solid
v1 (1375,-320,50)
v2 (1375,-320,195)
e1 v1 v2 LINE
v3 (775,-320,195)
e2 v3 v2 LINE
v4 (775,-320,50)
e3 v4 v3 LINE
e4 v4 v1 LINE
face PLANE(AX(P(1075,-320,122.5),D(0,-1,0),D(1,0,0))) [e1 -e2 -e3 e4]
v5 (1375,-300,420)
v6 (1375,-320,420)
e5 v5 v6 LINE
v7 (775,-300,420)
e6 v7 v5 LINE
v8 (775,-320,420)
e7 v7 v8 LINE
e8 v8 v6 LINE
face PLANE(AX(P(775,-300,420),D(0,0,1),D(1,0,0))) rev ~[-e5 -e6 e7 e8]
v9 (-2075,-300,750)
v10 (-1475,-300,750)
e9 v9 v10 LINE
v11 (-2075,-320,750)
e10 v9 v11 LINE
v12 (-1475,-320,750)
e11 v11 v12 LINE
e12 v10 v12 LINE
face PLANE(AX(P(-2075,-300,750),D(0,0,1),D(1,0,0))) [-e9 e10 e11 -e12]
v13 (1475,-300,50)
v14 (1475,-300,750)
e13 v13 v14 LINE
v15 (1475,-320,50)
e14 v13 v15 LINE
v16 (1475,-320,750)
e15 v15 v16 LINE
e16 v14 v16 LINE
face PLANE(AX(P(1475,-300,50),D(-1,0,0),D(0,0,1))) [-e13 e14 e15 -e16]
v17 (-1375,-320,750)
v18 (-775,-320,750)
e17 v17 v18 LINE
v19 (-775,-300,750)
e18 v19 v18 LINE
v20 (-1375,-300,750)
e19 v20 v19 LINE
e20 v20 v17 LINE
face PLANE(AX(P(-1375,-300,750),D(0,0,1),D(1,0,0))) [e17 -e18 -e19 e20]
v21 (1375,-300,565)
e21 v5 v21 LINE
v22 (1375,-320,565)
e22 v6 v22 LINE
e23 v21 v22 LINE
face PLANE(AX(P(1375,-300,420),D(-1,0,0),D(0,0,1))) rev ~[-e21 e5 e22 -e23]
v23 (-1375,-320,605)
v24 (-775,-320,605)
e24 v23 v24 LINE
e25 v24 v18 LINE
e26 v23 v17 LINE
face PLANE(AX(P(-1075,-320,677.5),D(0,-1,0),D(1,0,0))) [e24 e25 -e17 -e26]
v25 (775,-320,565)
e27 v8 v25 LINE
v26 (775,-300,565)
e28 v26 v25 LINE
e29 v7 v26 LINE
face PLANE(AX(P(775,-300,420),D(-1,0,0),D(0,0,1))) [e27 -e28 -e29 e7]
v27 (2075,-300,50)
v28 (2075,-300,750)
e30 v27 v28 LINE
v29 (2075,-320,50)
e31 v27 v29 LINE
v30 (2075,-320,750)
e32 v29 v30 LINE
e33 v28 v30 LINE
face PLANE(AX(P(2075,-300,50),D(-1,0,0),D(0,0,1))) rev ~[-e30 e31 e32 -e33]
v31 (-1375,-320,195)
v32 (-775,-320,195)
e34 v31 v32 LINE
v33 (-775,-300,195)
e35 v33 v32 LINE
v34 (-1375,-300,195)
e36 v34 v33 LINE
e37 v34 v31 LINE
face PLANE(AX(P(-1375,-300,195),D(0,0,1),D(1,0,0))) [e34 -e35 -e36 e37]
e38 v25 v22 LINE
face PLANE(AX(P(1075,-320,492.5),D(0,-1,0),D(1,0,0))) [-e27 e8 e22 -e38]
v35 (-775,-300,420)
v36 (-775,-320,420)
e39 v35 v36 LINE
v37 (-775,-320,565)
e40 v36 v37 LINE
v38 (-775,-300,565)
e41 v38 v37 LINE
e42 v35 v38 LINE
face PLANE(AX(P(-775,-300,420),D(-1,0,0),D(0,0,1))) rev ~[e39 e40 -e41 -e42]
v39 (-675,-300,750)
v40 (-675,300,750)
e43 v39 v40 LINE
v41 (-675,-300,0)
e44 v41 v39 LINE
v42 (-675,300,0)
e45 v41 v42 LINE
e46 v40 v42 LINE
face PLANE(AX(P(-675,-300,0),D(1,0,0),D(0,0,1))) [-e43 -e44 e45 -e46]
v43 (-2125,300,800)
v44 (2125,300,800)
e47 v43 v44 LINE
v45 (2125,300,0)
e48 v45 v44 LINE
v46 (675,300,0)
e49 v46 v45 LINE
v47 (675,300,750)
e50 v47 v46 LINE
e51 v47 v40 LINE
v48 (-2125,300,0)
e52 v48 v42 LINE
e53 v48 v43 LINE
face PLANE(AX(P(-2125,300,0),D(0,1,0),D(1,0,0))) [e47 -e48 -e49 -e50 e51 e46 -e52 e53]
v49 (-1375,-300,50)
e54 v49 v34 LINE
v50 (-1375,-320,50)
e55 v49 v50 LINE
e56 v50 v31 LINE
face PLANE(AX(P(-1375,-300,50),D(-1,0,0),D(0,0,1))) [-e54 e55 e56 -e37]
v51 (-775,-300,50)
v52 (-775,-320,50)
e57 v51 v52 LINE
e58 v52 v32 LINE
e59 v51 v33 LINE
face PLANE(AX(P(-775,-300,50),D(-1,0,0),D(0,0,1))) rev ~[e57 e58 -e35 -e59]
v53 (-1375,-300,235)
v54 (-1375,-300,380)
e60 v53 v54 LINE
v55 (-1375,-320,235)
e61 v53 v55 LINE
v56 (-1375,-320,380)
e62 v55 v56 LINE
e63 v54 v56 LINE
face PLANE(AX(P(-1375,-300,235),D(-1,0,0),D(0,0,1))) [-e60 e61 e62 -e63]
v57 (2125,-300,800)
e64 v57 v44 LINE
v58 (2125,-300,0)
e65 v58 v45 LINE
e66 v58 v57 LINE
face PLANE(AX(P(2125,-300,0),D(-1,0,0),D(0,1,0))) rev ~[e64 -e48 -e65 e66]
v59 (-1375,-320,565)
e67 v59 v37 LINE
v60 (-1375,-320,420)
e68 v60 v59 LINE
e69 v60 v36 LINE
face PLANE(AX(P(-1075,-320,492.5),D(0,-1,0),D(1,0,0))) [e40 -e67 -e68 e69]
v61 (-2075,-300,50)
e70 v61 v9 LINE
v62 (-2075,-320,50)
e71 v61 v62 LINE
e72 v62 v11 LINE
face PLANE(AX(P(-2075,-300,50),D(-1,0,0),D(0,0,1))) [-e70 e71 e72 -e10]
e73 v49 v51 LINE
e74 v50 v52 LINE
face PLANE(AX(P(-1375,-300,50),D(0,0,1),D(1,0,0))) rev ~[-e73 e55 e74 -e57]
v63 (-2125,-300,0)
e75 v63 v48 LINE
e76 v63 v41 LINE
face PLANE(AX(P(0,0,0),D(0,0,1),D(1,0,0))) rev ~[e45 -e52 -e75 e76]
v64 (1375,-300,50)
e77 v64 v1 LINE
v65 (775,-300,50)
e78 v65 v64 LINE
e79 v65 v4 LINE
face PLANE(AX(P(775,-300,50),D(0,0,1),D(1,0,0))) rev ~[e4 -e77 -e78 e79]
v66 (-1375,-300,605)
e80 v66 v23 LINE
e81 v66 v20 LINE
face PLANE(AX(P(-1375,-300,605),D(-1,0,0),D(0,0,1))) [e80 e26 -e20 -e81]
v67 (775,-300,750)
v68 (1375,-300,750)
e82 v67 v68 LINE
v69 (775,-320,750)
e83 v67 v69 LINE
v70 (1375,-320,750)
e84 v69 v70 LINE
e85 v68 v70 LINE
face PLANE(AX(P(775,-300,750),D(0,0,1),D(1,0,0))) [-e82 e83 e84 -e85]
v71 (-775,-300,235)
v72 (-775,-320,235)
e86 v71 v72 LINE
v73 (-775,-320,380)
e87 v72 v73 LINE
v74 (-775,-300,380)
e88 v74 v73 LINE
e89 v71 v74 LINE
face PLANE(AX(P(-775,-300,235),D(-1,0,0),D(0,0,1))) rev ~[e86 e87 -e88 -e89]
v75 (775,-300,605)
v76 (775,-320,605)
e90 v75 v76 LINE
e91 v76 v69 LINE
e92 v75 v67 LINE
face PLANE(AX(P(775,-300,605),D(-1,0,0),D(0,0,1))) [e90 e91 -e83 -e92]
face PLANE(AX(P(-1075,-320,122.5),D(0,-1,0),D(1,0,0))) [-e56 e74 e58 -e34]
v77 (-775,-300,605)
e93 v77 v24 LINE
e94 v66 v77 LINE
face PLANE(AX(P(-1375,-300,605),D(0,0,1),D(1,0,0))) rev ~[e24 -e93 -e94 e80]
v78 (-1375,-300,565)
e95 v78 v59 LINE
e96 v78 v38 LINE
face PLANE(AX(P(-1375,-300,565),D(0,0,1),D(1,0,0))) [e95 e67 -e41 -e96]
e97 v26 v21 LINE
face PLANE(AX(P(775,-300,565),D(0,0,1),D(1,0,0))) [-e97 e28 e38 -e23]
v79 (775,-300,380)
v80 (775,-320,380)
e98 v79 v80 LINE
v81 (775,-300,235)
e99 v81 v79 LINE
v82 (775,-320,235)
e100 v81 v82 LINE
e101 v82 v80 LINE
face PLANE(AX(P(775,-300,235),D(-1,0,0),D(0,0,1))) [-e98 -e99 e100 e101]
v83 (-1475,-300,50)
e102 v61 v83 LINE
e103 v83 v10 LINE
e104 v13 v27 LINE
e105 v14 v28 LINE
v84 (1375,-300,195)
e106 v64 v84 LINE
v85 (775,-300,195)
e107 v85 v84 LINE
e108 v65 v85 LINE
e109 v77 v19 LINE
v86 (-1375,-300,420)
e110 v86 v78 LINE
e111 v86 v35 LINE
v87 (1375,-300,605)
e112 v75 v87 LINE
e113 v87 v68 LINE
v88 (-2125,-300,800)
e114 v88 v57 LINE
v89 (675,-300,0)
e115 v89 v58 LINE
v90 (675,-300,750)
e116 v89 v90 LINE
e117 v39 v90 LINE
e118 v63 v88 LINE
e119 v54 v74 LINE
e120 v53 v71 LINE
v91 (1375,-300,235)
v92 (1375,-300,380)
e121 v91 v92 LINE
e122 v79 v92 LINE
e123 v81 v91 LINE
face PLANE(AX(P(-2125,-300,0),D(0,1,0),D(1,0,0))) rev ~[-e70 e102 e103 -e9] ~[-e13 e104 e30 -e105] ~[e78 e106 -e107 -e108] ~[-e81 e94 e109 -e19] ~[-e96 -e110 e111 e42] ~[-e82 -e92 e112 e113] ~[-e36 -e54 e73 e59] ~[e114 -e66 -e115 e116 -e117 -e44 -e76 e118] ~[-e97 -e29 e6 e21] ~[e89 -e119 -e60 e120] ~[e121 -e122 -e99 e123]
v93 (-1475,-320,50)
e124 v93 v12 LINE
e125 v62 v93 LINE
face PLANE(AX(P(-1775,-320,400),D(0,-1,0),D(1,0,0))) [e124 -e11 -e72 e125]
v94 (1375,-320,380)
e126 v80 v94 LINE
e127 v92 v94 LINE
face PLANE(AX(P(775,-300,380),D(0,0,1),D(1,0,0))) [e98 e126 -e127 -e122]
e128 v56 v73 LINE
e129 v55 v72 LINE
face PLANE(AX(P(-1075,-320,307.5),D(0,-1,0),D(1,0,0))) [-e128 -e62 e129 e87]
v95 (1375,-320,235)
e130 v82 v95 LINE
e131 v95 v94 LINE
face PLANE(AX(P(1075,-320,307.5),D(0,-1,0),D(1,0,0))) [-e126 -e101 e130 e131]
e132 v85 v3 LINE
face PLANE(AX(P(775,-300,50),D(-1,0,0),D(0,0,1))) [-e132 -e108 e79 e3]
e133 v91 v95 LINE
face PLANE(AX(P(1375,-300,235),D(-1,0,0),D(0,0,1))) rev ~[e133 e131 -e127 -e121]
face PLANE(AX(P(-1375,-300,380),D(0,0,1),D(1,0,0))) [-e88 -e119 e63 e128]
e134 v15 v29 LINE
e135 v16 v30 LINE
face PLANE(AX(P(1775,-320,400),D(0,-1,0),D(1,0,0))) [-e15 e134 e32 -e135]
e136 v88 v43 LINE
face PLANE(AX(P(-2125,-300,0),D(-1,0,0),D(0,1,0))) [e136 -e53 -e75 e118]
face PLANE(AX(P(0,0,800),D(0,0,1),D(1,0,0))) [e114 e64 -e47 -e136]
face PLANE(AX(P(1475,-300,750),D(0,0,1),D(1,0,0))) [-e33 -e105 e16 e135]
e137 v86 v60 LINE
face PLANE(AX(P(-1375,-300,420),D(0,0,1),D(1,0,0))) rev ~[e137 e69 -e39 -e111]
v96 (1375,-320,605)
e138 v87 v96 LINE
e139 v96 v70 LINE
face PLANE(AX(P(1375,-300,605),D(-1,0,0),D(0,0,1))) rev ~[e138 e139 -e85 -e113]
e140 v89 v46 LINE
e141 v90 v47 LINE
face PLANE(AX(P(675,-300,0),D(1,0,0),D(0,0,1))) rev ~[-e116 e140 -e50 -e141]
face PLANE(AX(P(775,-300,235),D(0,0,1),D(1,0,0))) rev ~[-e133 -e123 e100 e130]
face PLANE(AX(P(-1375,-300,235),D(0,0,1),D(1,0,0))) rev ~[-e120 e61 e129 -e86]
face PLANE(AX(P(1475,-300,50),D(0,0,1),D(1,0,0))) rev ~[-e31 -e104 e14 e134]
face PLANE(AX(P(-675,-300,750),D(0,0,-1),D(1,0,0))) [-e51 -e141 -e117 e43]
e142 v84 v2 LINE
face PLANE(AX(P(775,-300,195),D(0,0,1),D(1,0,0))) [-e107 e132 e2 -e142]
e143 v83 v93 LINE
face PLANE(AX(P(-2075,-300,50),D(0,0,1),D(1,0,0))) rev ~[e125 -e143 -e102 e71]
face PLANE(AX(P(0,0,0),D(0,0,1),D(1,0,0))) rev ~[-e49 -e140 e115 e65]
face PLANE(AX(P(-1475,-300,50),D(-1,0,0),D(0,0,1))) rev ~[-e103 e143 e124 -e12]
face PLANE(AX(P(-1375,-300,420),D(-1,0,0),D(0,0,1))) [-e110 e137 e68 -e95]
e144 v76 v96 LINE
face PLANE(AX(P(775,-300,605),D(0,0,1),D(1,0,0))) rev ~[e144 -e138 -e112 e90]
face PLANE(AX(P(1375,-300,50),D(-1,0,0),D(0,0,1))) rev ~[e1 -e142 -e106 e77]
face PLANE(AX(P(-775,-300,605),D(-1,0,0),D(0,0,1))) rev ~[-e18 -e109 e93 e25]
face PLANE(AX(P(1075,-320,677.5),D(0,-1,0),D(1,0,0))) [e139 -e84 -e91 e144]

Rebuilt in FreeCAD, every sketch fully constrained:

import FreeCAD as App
import Part
import Sketcher

V = App.Vector


def add_polygon(sketch, points):
    """Adds a closed chain of lines whose ends are joined by coincident constraints."""
    first, n = sketch.GeometryCount, len(points)
    for a, b in zip(points, points[1:] + points[:1]):
        sketch.addGeometry(Part.LineSegment(App.Vector(*a, 0), App.Vector(*b, 0)), False)
    for i in range(n):
        sketch.addConstraint(Sketcher.Constraint("Coincident", first + i, 2, first + (i + 1) % n, 1))

doc = App.newDocument("Part")
params = doc.addObject("Spreadsheet::Sheet", "Params")
for row, (alias, value) in enumerate([
    ("sketch1_width", "4250 mm"),
    ("sketch1_height", "600 mm"),
    ("pad1_length", "800 mm"),
    ("sketch2_width", "600 mm"),
    ("sketch2_height", "700 mm"),
    ("sketch2_height2", "145 mm"),
    ("pad2_length", "20 mm"),
    ("sketch3_width", "1350 mm"),
    ("sketch3_height", "750 mm"),
    ("pocket1_length", "700 mm"),
], start=1):
    params.set(f"A{row}", alias)
    params.set(f"B{row}", "=" + value)
    params.setAlias(f"B{row}", alias)

body = doc.addObject("PartDesign::Body", "Body")

sketch1 = body.newObject("Sketcher::SketchObject", "Sketch")
sketch1.AttachmentSupport = (doc.getObject("XY_Plane"), [""])
sketch1.MapMode = "FlatFace"
add_polygon(sketch1, [(-2125, 300), (-2125, -300), (2125, -300), (2125, 300)])
sketch1.addConstraint(Sketcher.Constraint("Vertical", 0))
sketch1.addConstraint(Sketcher.Constraint("Horizontal", 1))
sketch1.addConstraint(Sketcher.Constraint("Vertical", 2))
sketch1.addConstraint(Sketcher.Constraint("Horizontal", 3))
sketch1.addConstraint(Sketcher.Constraint("Symmetric", 0, 2, 2, 2, -1, 1))
sketch1.addConstraint(Sketcher.Constraint("DistanceX", 1, 1, 1, 2, 4250.0))
sketch1.addConstraint(Sketcher.Constraint("DistanceY", 0, 2, 0, 1, 600.0))
sketch1.setExpression("Constraints[9]", "Params.sketch1_width")
sketch1.setExpression("Constraints[10]", "Params.sketch1_height")
pad1 = body.newObject("PartDesign::Pad", "Pad")
pad1.Profile = sketch1
pad1.setExpression("Length", "Params.pad1_length")

sketch2 = body.newObject("Sketcher::SketchObject", "Sketch001")
sketch2.AttachmentSupport = (doc.getObject("XZ_Plane"), [""])
sketch2.MapMode = "FlatFace"
sketch2.AttachmentOffset = App.Placement(V(0, 0, 300), App.Rotation())
add_polygon(sketch2, [(-2075, 750), (-2075, 50), (-1475, 50), (-1475, 750)])
add_polygon(sketch2, [(-1375, 750), (-1375, 605), (-775, 605), (-775, 750)])
add_polygon(sketch2, [(-1375, 565), (-1375, 420), (-775, 420), (-775, 565)])
add_polygon(sketch2, [(-1375, 380), (-1375, 235), (-775, 235), (-775, 380)])
add_polygon(sketch2, [(-1375, 195), (-1375, 50), (-775, 50), (-775, 195)])
add_polygon(sketch2, [(775, 750), (775, 605), (1375, 605), (1375, 750)])
add_polygon(sketch2, [(775, 565), (775, 420), (1375, 420), (1375, 565)])
add_polygon(sketch2, [(775, 380), (775, 235), (1375, 235), (1375, 380)])
add_polygon(sketch2, [(775, 195), (775, 50), (1375, 50), (1375, 195)])
add_polygon(sketch2, [(1475, 750), (1475, 50), (2075, 50), (2075, 750)])
sketch2.addConstraint(Sketcher.Constraint("Vertical", 0))
sketch2.addConstraint(Sketcher.Constraint("Horizontal", 1))
sketch2.addConstraint(Sketcher.Constraint("Vertical", 2))
sketch2.addConstraint(Sketcher.Constraint("Horizontal", 3))
sketch2.addConstraint(Sketcher.Constraint("Vertical", 4))
sketch2.addConstraint(Sketcher.Constraint("Horizontal", 5))
sketch2.addConstraint(Sketcher.Constraint("Vertical", 6))
sketch2.addConstraint(Sketcher.Constraint("Horizontal", 7))
sketch2.addConstraint(Sketcher.Constraint("Vertical", 8))
sketch2.addConstraint(Sketcher.Constraint("Horizontal", 9))
sketch2.addConstraint(Sketcher.Constraint("Vertical", 10))
sketch2.addConstraint(Sketcher.Constraint("Horizontal", 11))
sketch2.addConstraint(Sketcher.Constraint("Vertical", 12))
sketch2.addConstraint(Sketcher.Constraint("Horizontal", 13))
sketch2.addConstraint(Sketcher.Constraint("Vertical", 14))
sketch2.addConstraint(Sketcher.Constraint("Horizontal", 15))
sketch2.addConstraint(Sketcher.Constraint("Vertical", 16))
sketch2.addConstraint(Sketcher.Constraint("Horizontal", 17))
sketch2.addConstraint(Sketcher.Constraint("Vertical", 18))
sketch2.addConstraint(Sketcher.Constraint("Horizontal", 19))
sketch2.addConstraint(Sketcher.Constraint("Vertical", 20))
sketch2.addConstraint(Sketcher.Constraint("Horizontal", 21))
sketch2.addConstraint(Sketcher.Constraint("Vertical", 22))
sketch2.addConstraint(Sketcher.Constraint("Horizontal", 23))
sketch2.addConstraint(Sketcher.Constraint("Vertical", 24))
sketch2.addConstraint(Sketcher.Constraint("Horizontal", 25))
sketch2.addConstraint(Sketcher.Constraint("Vertical", 26))
sketch2.addConstraint(Sketcher.Constraint("Horizontal", 27))
sketch2.addConstraint(Sketcher.Constraint("Vertical", 28))
sketch2.addConstraint(Sketcher.Constraint("Horizontal", 29))
sketch2.addConstraint(Sketcher.Constraint("Vertical", 30))
sketch2.addConstraint(Sketcher.Constraint("Horizontal", 31))
sketch2.addConstraint(Sketcher.Constraint("Vertical", 32))
sketch2.addConstraint(Sketcher.Constraint("Horizontal", 33))
sketch2.addConstraint(Sketcher.Constraint("Vertical", 34))
sketch2.addConstraint(Sketcher.Constraint("Horizontal", 35))
sketch2.addConstraint(Sketcher.Constraint("Vertical", 36))
sketch2.addConstraint(Sketcher.Constraint("Horizontal", 37))
sketch2.addConstraint(Sketcher.Constraint("Vertical", 38))
sketch2.addConstraint(Sketcher.Constraint("Horizontal", 39))
sketch2.addConstraint(Sketcher.Constraint("Symmetric", 5, 2, 20, 2, -2))
sketch2.addConstraint(Sketcher.Constraint("Symmetric", 7, 2, 22, 2, -2))
sketch2.addConstraint(Sketcher.Constraint("Symmetric", 9, 2, 24, 2, -2))
sketch2.addConstraint(Sketcher.Constraint("Symmetric", 11, 2, 26, 2, -2))
sketch2.addConstraint(Sketcher.Constraint("Symmetric", 13, 2, 28, 2, -2))
sketch2.addConstraint(Sketcher.Constraint("Symmetric", 15, 2, 30, 2, -2))
sketch2.addConstraint(Sketcher.Constraint("Symmetric", 17, 2, 32, 2, -2))
sketch2.addConstraint(Sketcher.Constraint("Symmetric", 19, 2, 34, 2, -2))
sketch2.addConstraint(Sketcher.Constraint("Symmetric", 1, 2, 36, 2, -2))
sketch2.addConstraint(Sketcher.Constraint("Symmetric", 3, 2, 38, 2, -2))
sketch2.addConstraint(Sketcher.Constraint("Horizontal", 3, 2, 6, 2))
sketch2.addConstraint(Sketcher.Constraint("Horizontal", 1, 2, 16, 2))
sketch2.addConstraint(Sketcher.Constraint("Vertical", 7, 2, 8, 2))
sketch2.addConstraint(Sketcher.Constraint("Vertical", 6, 2, 9, 2))
sketch2.addConstraint(Sketcher.Constraint("Vertical", 11, 2, 12, 2))
sketch2.addConstraint(Sketcher.Constraint("Vertical", 10, 2, 13, 2))
sketch2.addConstraint(Sketcher.Constraint("Vertical", 15, 2, 16, 2))
sketch2.addConstraint(Sketcher.Constraint("Vertical", 14, 2, 17, 2))
sketch2.addConstraint(Sketcher.Constraint("Equal", 3, 5))
sketch2.addConstraint(Sketcher.Constraint("Equal", 6, 8))
sketch2.addConstraint(Sketcher.Constraint("Equal", 10, 12))
sketch2.addConstraint(Sketcher.Constraint("Equal", 14, 16))
sketch2.addConstraint(Sketcher.Constraint("DistanceX", 1, 1, 1, 2, 600.0))
sketch2.addConstraint(Sketcher.Constraint("DistanceY", 0, 2, 0, 1, 700.0))
sketch2.addConstraint(Sketcher.Constraint("DistanceY", 4, 2, 4, 1, 145.0))
sketch2.addConstraint(Sketcher.Constraint("DistanceX", 0, 2, -1, 1, 2075.0))
sketch2.addConstraint(Sketcher.Constraint("DistanceY", -1, 1, 0, 2, 50.0))
sketch2.addConstraint(Sketcher.Constraint("DistanceX", 4, 2, -1, 1, 1375.0))
sketch2.addConstraint(Sketcher.Constraint("DistanceY", -1, 1, 8, 2, 420.0))
sketch2.addConstraint(Sketcher.Constraint("DistanceY", -1, 1, 12, 2, 235.0))
sketch2.setExpression("Constraints[102]", "Params.sketch2_width")
sketch2.setExpression("Constraints[103]", "Params.sketch2_height")
sketch2.setExpression("Constraints[104]", "Params.sketch2_height2")
pad2 = body.newObject("PartDesign::Pad", "Pad001")
pad2.Profile = sketch2
pad2.setExpression("Length", "Params.pad2_length")

sketch3 = body.newObject("Sketcher::SketchObject", "Sketch002")
sketch3.AttachmentSupport = (doc.getObject("XZ_Plane"), [""])
sketch3.MapMode = "FlatFace"
sketch3.AttachmentOffset = App.Placement(V(0, 0, 300), App.Rotation())
add_polygon(sketch3, [(-675, 750), (-675, 0), (675, 0), (675, 750)])
sketch3.addConstraint(Sketcher.Constraint("Vertical", 0))
sketch3.addConstraint(Sketcher.Constraint("Horizontal", 1))
sketch3.addConstraint(Sketcher.Constraint("Vertical", 2))
sketch3.addConstraint(Sketcher.Constraint("Horizontal", 3))
sketch3.addConstraint(Sketcher.Constraint("Symmetric", 0, 2, 1, 2, -1, 1))
sketch3.addConstraint(Sketcher.Constraint("DistanceX", 1, 1, 1, 2, 1350.0))
sketch3.addConstraint(Sketcher.Constraint("DistanceY", 0, 2, 0, 1, 750.0))
sketch3.setExpression("Constraints[9]", "Params.sketch3_width")
sketch3.setExpression("Constraints[10]", "Params.sketch3_height")
pocket1 = body.newObject("PartDesign::Pocket", "Pocket")
pocket1.Profile = sketch3
pocket1.setExpression("Length", "Params.pocket1_length")

doc.recompute()
